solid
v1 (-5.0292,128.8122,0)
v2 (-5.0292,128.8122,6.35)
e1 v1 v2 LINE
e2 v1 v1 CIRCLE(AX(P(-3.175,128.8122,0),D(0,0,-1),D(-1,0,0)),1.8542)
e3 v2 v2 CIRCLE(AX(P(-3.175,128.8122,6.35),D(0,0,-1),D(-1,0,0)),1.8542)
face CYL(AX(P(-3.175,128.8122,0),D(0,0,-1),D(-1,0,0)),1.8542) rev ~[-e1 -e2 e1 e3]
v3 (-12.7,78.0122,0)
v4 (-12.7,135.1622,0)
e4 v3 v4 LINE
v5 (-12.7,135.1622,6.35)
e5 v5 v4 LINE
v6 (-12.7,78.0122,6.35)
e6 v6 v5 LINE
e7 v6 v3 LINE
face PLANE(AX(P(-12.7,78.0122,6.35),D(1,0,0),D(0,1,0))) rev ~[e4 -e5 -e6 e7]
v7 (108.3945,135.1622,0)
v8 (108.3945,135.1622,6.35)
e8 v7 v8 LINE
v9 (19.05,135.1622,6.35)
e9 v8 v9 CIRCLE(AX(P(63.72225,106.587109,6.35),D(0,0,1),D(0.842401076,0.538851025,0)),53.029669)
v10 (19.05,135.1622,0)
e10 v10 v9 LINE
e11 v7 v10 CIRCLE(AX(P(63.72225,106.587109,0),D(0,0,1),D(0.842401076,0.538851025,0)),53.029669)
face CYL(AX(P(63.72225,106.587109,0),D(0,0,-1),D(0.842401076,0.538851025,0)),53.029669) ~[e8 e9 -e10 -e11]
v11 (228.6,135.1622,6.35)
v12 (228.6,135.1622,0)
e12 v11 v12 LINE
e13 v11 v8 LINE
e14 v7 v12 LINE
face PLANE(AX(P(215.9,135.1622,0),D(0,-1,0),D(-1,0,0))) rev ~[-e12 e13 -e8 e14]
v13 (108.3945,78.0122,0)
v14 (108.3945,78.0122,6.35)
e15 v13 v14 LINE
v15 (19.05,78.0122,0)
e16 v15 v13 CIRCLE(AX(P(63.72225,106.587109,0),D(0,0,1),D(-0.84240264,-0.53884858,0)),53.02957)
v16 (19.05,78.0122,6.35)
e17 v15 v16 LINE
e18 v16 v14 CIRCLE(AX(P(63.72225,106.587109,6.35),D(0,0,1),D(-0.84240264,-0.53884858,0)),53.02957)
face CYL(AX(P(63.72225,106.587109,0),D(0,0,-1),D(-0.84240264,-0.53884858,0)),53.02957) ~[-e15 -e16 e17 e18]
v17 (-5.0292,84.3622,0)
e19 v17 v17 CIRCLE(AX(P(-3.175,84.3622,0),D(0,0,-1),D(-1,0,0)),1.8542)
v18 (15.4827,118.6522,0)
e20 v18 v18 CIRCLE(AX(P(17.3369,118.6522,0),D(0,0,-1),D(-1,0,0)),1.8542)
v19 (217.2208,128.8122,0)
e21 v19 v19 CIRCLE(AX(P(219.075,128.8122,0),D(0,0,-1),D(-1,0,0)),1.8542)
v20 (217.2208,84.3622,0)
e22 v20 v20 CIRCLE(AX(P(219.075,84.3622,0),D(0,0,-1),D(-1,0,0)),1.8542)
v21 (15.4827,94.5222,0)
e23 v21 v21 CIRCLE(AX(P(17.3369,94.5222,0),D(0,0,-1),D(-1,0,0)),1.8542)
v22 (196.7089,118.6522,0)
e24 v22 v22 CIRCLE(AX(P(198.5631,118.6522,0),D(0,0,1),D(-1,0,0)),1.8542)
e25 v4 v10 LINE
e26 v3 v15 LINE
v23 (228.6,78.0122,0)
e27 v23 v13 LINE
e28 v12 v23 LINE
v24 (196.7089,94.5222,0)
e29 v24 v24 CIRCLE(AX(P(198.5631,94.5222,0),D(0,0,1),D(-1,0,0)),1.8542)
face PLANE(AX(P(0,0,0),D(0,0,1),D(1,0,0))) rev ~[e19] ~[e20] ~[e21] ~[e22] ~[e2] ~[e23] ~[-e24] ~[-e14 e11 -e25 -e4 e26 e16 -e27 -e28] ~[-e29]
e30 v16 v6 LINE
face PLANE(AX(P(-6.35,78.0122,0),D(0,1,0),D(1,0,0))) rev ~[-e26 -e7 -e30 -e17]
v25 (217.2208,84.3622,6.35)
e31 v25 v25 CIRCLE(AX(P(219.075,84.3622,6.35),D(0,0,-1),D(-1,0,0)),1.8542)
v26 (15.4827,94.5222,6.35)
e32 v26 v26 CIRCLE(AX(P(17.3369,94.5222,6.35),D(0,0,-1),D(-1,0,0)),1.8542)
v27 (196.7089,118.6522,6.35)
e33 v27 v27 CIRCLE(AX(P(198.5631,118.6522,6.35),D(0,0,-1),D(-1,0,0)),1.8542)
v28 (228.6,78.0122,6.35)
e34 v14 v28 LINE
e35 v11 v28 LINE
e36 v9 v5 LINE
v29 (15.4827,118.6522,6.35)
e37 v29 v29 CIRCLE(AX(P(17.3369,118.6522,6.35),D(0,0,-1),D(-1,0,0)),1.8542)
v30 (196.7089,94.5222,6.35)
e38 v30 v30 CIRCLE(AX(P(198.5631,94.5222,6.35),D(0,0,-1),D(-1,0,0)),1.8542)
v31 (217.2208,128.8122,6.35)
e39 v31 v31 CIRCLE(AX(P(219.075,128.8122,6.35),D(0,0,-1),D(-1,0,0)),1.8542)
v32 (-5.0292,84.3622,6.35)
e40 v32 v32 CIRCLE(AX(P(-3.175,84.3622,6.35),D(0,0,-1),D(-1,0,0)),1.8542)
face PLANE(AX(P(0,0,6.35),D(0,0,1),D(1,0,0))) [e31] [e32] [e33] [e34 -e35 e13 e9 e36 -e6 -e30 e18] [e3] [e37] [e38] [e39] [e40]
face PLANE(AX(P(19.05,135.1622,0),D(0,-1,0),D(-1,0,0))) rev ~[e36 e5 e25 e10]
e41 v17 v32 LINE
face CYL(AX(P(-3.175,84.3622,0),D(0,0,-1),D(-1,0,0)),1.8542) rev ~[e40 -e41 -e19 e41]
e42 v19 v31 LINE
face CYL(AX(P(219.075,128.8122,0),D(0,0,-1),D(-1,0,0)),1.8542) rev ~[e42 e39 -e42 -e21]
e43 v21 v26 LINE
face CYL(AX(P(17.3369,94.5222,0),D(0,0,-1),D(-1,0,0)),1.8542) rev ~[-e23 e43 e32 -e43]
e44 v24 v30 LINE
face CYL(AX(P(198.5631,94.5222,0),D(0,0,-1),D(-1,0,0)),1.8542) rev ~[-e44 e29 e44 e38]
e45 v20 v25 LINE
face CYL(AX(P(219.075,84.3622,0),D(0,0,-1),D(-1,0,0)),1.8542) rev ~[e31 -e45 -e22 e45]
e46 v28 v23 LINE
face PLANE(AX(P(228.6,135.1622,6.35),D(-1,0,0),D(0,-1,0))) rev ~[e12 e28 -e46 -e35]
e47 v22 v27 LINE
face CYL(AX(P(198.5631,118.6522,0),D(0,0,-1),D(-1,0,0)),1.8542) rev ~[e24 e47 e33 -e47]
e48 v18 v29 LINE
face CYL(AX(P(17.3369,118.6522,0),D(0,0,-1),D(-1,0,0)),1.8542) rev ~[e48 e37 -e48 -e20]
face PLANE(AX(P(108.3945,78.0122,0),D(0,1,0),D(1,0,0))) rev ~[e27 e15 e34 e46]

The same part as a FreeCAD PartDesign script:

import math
import FreeCAD as App
import Part
import Sketcher
Q = App.Units.Quantity


def add_polygon(sketch, points):
    """Adds a closed chain of lines whose ends are joined by coincident constraints."""
    first, n = sketch.GeometryCount, len(points)
    for a, b in zip(points, points[1:] + points[:1]):
        sketch.addGeometry(Part.LineSegment(App.Vector(*a, 0), App.Vector(*b, 0)), False)
    for i in range(n):
        sketch.addConstraint(Sketcher.Constraint("Coincident", first + i, 2, first + (i + 1) % n, 1))

doc = App.newDocument("Part")
body = doc.addObject("PartDesign::Body", "Body")

# Sketch on XY plane
sketch1 = doc.addObject("Sketcher::SketchObject", "Sketch")
body.addObject(sketch1)
sketch1.AttachmentSupport = (doc.XY_Plane, [""])
sketch1.MapMode = "FlatFace"
sketch1.addGeometry([
    Part.LineSegment(App.Vector(-6, 78, 0), App.Vector(19, 78, 0)),  # 0
    Part.ArcOfCircle(Part.Circle(App.Vector(64, 107, 0), App.Vector(0, 0, 1), 53), math.radians(-147), math.radians(-33)),  # 1
    Part.LineSegment(App.Vector(108, 78, 0), App.Vector(222, 78, 0)),  # 2
    Part.LineSegment(App.Vector(222, 78, 0), App.Vector(222, 135, 0)),  # 3
    Part.LineSegment(App.Vector(222, 135, 0), App.Vector(108, 135, 0)),  # 4
    Part.ArcOfCircle(Part.Circle(App.Vector(64, 107, 0), App.Vector(0, 0, 1), 53), math.radians(33), math.radians(147)),  # 5
    Part.LineSegment(App.Vector(19, 135, 0), App.Vector(-6, 135, 0)),  # 6
    Part.LineSegment(App.Vector(-6, 135, 0), App.Vector(-6, 78, 0)),  # 7
], False)
sketch1.addConstraint([
    Sketcher.Constraint("Coincident", 0, 2, 1, 1),
    Sketcher.Constraint("Coincident", 1, 2, 2, 1),
    Sketcher.Constraint("Coincident", 2, 2, 3, 1),
    Sketcher.Constraint("Coincident", 3, 2, 4, 1),
    Sketcher.Constraint("Coincident", 4, 2, 5, 1),
    Sketcher.Constraint("Coincident", 5, 2, 6, 1),
    Sketcher.Constraint("Coincident", 6, 2, 7, 1),
    Sketcher.Constraint("Coincident", 7, 2, 0, 1),
    Sketcher.Constraint("Horizontal", 0),
    Sketcher.Constraint("Horizontal", 2),
    Sketcher.Constraint("Vertical", 3),
    Sketcher.Constraint("Horizontal", 4),
    Sketcher.Constraint("Horizontal", 6),
    Sketcher.Constraint("Vertical", 7),
    Sketcher.Constraint("Coincident", 5, 3, 1, 3),
    Sketcher.Constraint("Equal", 1, 5),
    Sketcher.Constraint("Horizontal", 0, 2, 1, 2),
    Sketcher.Constraint("Horizontal", 4, 2, 5, 2),
    Sketcher.Constraint("Vertical", 1, 2, 4, 2),
    Sketcher.Constraint("DistanceX", 0, 1, 0, 2, Q("1 in")),
    Sketcher.Constraint("DistanceY", 3, 1, 3, 2, Q("2.25 in")),
    Sketcher.Constraint("DistanceX", 2, 1, 2, 2, Q("4.4825 in")),
    Sketcher.Constraint("DistanceX", 0, 2, 2, 2, Q("8 in")),
    Sketcher.Constraint("DistanceX", -1, 1, 0, 2, Q("0.75 in")),
    Sketcher.Constraint("DistanceY", -1, 1, 1, 3, 106.5872),
])
pad1 = doc.addObject("PartDesign::Pad", "Pad")
body.addObject(pad1)
pad1.Profile = sketch1
pad1.Length = Q("0.25 in")

# Sketch on XY plane
sketch2 = doc.addObject("Sketcher::SketchObject", "Sketch001")
body.addObject(sketch2)
sketch2.AttachmentSupport = (doc.XY_Plane, [""])
sketch2.MapMode = "FlatFace"
sketch2.addGeometry([
    Part.Circle(App.Vector(219.1, 128.8, 0), App.Vector(0, 0, 1), 1.9),  # 0
    Part.Circle(App.Vector(198.6, 118.7, 0), App.Vector(0, 0, 1), 1.9),  # 1
    Part.Circle(App.Vector(219.1, 84.4, 0), App.Vector(0, 0, 1), 1.9),  # 2
    Part.Circle(App.Vector(198.6, 94.5, 0), App.Vector(0, 0, 1), 1.9),  # 3
    Part.Circle(App.Vector(-3.2, 128.8, 0), App.Vector(0, 0, 1), 1.9),  # 4
    Part.Circle(App.Vector(17.3, 118.7, 0), App.Vector(0, 0, 1), 1.9),  # 5
    Part.Circle(App.Vector(17.3, 94.5, 0), App.Vector(0, 0, 1), 1.9),  # 6
    Part.Circle(App.Vector(-3.2, 84.4, 0), App.Vector(0, 0, 1), 1.9),  # 7
], False)
sketch2.addConstraint([
    Sketcher.Constraint("Equal", 0, 1),
    Sketcher.Constraint("Equal", 1, 2),
    Sketcher.Constraint("Equal", 2, 3),
    Sketcher.Constraint("Equal", 3, 4),
    Sketcher.Constraint("Equal", 4, 5),
    Sketcher.Constraint("Equal", 5, 6),
    Sketcher.Constraint("Equal", 6, 7),
    Sketcher.Constraint("Horizontal", 0, 3, 4, 3),
    Sketcher.Constraint("Horizontal", 1, 3, 5, 3),
    Sketcher.Constraint("Horizontal", 3, 3, 6, 3),
    Sketcher.Constraint("Horizontal", 2, 3, 7, 3),
    Sketcher.Constraint("Vertical", 0, 3, 2, 3),
    Sketcher.Constraint("Vertical", 1, 3, 3, 3),
    Sketcher.Constraint("Vertical", 5, 3, 6, 3),
    Sketcher.Constraint("Vertical", 4, 3, 7, 3),
    Sketcher.Constraint("Diameter", 0, Q("0.146 in")),
    Sketcher.Constraint("DistanceX", 4, 3, -1, 1, Q("0.125 in")),
    Sketcher.Constraint("DistanceY", 1, 3, 0, 3, Q("0.4 in")),
    Sketcher.Constraint("DistanceY", 2, 3, 3, 3, Q("0.4 in")),
    Sketcher.Constraint("DistanceY", 2, 3, 1, 3, Q("1.35 in")),
    Sketcher.Constraint("DistanceX", 4, 3, 0, 3, Q("8.75 in")),
    Sketcher.Constraint("DistanceX", 5, 3, 1, 3, Q("7.1349 in")),
    Sketcher.Constraint("DistanceY", -1, 1, 0, 3, 128.8122),
    Sketcher.Constraint("DistanceX", -1, 1, 1, 3, 198.563),
])
pocket1 = doc.addObject("PartDesign::Pocket", "Pocket")
body.addObject(pocket1)
pocket1.Profile = sketch2
pocket1.Type = "ThroughAll"
pocket1.Reversed = True

# Sketch on XY plane
sketch3 = doc.addObject("Sketcher::SketchObject", "Sketch002")
body.addObject(sketch3)
sketch3.AttachmentSupport = (doc.XY_Plane, [""])
sketch3.MapMode = "FlatFace"
sketch3.AttachmentOffset = App.Placement(App.Vector(0, 0, 0.25 * 25.4), App.Rotation())
add_polygon(sketch3, [(229, 135), (222, 135), (222, 78), (229, 78)])  # lines 0-3
add_polygon(sketch3, [(-13, 78), (-6, 78), (-6, 135), (-13, 135)])  # lines 4-7
sketch3.addConstraint([
    Sketcher.Constraint("Horizontal", 0),
    Sketcher.Constraint("Vertical", 1),
    Sketcher.Constraint("Horizontal", 2),
    Sketcher.Constraint("Vertical", 3),
    Sketcher.Constraint("Horizontal", 4),
    Sketcher.Constraint("Vertical", 5),
    Sketcher.Constraint("Horizontal", 6),
    Sketcher.Constraint("Vertical", 7),
    Sketcher.Constraint("Horizontal", 2, 2, 4, 2),
    Sketcher.Constraint("Horizontal", 3, 2, 5, 2),
    Sketcher.Constraint("Equal", 2, 4),
    Sketcher.Constraint("DistanceX", 0, 2, 0, 1, Q("0.25 in")),
    Sketcher.Constraint("DistanceY", 1, 2, 1, 1, Q("2.25 in")),
    Sketcher.Constraint("DistanceX", 4, 2, -1, 1, Q("0.25 in")),
    Sketcher.Constraint("DistanceX", -1, 1, 2, 2, Q("9 in")),
    Sketcher.Constraint("DistanceY", -1, 1, 0, 2, 135.1622),
])
pad2 = doc.addObject("PartDesign::Pad", "Pad001")
body.addObject(pad2)
pad2.Profile = sketch3
pad2.Length = Q("0.25 in")
pad2.Reversed = True

# Sketch on XY plane
sketch4 = doc.addObject("Sketcher::SketchObject", "Sketch003")
body.addObject(sketch4)
sketch4.AttachmentSupport = (doc.XY_Plane, [""])
sketch4.MapMode = "FlatFace"
sketch4.AttachmentOffset = App.Placement(App.Vector(0, 0, 0.25 * 25.4), App.Rotation())
add_polygon(sketch4, [(262, 119), (255, 119), (255, 94), (262, 94)])  # lines 0-3
add_polygon(sketch4, [(-39, 94), (-39, 119), (-46, 119), (-46, 94)])  # lines 4-7
sketch4.addConstraint([
    Sketcher.Constraint("Horizontal", 0),
    Sketcher.Constraint("Vertical", 1),
    Sketcher.Constraint("Horizontal", 2),
    Sketcher.Constraint("Vertical", 3),
    Sketcher.Constraint("Vertical", 4),
    Sketcher.Constraint("Horizontal", 5),
    Sketcher.Constraint("Vertical", 6),
    Sketcher.Constraint("Horizontal", 7),
    Sketcher.Constraint("Horizontal", 3, 2, 4, 2),
    Sketcher.Constraint("Horizontal", 2, 2, 6, 2),
    Sketcher.Constraint("Equal", 2, 5),
    Sketcher.Constraint("DistanceY", 1, 2, 1, 1, Q("1 in")),
    Sketcher.Constraint("DistanceX", 0, 2, 0, 1, Q("0.25 in")),
    Sketcher.Constraint("DistanceX", -1, 1, 0, 2, Q("10.0456 in")),
    Sketcher.Constraint("DistanceX", 4, 2, -1, 1, Q("1.5456 in")),
    Sketcher.Constraint("DistanceY", -1, 1, 0, 2, 119.2872),
])
pocket2 = doc.addObject("PartDesign::Pocket", "Pocket001")
body.addObject(pocket2)
pocket2.Profile = sketch4
pocket2.Type = "ThroughAll"

# Sketch on XY plane
sketch5 = doc.addObject("Sketcher::SketchObject", "Sketch004")
body.addObject(sketch5)
sketch5.AttachmentSupport = (doc.XY_Plane, [""])
sketch5.MapMode = "FlatFace"
sketch5.AttachmentOffset = App.Placement(App.Vector(0, 0, 0.25 * 25.4), App.Rotation())
sketch5.addGeometry([
    Part.Circle(App.Vector(97.2, 37.5, 0), App.Vector(0, 0, 1), 1.9),
    Part.Circle(App.Vector(108.4, 22.6, 0), App.Vector(0, 0, 1), 1.9),
    Part.Circle(App.Vector(93.5, 11.4, 0), App.Vector(0, 0, 1), 1.9),
    Part.Circle(App.Vector(82.3, 26.3, 0), App.Vector(0, 0, 1), 1.9),
], False)
sketch5.addConstraint([
    Sketcher.Constraint("Equal", 0, 1),
    Sketcher.Constraint("Equal", 1, 2),
    Sketcher.Constraint("Equal", 2, 3),
    Sketcher.Constraint("Diameter", 0, Q("0.146 in")),
    Sketcher.Constraint("DistanceX", -1, 1, 0, 3, Q("3.8266 in")),
    Sketcher.Constraint("DistanceY", -1, 1, 2, 3, Q("0.4506 in")),
    Sketcher.Constraint("DistanceX", 2, 3, 1, 3, Q("0.5849 in")),
    Sketcher.Constraint("DistanceX", 3, 3, 0, 3, Q("0.5849 in")),
    Sketcher.Constraint("DistanceY", -1, 1, 0, 3, 37.4808),
    Sketcher.Constraint("DistanceX", -1, 1, 1, 3, 108.3755),
    Sketcher.Constraint("DistanceY", -1, 1, 1, 3, 22.6247),
    Sketcher.Constraint("DistanceY", -1, 1, 3, 3, 26.3012),
])
pocket3 = doc.addObject("PartDesign::Pocket", "Pocket002")
body.addObject(pocket3)
pocket3.Profile = sketch5
pocket3.Type = "ThroughAll"

doc.recompute()
